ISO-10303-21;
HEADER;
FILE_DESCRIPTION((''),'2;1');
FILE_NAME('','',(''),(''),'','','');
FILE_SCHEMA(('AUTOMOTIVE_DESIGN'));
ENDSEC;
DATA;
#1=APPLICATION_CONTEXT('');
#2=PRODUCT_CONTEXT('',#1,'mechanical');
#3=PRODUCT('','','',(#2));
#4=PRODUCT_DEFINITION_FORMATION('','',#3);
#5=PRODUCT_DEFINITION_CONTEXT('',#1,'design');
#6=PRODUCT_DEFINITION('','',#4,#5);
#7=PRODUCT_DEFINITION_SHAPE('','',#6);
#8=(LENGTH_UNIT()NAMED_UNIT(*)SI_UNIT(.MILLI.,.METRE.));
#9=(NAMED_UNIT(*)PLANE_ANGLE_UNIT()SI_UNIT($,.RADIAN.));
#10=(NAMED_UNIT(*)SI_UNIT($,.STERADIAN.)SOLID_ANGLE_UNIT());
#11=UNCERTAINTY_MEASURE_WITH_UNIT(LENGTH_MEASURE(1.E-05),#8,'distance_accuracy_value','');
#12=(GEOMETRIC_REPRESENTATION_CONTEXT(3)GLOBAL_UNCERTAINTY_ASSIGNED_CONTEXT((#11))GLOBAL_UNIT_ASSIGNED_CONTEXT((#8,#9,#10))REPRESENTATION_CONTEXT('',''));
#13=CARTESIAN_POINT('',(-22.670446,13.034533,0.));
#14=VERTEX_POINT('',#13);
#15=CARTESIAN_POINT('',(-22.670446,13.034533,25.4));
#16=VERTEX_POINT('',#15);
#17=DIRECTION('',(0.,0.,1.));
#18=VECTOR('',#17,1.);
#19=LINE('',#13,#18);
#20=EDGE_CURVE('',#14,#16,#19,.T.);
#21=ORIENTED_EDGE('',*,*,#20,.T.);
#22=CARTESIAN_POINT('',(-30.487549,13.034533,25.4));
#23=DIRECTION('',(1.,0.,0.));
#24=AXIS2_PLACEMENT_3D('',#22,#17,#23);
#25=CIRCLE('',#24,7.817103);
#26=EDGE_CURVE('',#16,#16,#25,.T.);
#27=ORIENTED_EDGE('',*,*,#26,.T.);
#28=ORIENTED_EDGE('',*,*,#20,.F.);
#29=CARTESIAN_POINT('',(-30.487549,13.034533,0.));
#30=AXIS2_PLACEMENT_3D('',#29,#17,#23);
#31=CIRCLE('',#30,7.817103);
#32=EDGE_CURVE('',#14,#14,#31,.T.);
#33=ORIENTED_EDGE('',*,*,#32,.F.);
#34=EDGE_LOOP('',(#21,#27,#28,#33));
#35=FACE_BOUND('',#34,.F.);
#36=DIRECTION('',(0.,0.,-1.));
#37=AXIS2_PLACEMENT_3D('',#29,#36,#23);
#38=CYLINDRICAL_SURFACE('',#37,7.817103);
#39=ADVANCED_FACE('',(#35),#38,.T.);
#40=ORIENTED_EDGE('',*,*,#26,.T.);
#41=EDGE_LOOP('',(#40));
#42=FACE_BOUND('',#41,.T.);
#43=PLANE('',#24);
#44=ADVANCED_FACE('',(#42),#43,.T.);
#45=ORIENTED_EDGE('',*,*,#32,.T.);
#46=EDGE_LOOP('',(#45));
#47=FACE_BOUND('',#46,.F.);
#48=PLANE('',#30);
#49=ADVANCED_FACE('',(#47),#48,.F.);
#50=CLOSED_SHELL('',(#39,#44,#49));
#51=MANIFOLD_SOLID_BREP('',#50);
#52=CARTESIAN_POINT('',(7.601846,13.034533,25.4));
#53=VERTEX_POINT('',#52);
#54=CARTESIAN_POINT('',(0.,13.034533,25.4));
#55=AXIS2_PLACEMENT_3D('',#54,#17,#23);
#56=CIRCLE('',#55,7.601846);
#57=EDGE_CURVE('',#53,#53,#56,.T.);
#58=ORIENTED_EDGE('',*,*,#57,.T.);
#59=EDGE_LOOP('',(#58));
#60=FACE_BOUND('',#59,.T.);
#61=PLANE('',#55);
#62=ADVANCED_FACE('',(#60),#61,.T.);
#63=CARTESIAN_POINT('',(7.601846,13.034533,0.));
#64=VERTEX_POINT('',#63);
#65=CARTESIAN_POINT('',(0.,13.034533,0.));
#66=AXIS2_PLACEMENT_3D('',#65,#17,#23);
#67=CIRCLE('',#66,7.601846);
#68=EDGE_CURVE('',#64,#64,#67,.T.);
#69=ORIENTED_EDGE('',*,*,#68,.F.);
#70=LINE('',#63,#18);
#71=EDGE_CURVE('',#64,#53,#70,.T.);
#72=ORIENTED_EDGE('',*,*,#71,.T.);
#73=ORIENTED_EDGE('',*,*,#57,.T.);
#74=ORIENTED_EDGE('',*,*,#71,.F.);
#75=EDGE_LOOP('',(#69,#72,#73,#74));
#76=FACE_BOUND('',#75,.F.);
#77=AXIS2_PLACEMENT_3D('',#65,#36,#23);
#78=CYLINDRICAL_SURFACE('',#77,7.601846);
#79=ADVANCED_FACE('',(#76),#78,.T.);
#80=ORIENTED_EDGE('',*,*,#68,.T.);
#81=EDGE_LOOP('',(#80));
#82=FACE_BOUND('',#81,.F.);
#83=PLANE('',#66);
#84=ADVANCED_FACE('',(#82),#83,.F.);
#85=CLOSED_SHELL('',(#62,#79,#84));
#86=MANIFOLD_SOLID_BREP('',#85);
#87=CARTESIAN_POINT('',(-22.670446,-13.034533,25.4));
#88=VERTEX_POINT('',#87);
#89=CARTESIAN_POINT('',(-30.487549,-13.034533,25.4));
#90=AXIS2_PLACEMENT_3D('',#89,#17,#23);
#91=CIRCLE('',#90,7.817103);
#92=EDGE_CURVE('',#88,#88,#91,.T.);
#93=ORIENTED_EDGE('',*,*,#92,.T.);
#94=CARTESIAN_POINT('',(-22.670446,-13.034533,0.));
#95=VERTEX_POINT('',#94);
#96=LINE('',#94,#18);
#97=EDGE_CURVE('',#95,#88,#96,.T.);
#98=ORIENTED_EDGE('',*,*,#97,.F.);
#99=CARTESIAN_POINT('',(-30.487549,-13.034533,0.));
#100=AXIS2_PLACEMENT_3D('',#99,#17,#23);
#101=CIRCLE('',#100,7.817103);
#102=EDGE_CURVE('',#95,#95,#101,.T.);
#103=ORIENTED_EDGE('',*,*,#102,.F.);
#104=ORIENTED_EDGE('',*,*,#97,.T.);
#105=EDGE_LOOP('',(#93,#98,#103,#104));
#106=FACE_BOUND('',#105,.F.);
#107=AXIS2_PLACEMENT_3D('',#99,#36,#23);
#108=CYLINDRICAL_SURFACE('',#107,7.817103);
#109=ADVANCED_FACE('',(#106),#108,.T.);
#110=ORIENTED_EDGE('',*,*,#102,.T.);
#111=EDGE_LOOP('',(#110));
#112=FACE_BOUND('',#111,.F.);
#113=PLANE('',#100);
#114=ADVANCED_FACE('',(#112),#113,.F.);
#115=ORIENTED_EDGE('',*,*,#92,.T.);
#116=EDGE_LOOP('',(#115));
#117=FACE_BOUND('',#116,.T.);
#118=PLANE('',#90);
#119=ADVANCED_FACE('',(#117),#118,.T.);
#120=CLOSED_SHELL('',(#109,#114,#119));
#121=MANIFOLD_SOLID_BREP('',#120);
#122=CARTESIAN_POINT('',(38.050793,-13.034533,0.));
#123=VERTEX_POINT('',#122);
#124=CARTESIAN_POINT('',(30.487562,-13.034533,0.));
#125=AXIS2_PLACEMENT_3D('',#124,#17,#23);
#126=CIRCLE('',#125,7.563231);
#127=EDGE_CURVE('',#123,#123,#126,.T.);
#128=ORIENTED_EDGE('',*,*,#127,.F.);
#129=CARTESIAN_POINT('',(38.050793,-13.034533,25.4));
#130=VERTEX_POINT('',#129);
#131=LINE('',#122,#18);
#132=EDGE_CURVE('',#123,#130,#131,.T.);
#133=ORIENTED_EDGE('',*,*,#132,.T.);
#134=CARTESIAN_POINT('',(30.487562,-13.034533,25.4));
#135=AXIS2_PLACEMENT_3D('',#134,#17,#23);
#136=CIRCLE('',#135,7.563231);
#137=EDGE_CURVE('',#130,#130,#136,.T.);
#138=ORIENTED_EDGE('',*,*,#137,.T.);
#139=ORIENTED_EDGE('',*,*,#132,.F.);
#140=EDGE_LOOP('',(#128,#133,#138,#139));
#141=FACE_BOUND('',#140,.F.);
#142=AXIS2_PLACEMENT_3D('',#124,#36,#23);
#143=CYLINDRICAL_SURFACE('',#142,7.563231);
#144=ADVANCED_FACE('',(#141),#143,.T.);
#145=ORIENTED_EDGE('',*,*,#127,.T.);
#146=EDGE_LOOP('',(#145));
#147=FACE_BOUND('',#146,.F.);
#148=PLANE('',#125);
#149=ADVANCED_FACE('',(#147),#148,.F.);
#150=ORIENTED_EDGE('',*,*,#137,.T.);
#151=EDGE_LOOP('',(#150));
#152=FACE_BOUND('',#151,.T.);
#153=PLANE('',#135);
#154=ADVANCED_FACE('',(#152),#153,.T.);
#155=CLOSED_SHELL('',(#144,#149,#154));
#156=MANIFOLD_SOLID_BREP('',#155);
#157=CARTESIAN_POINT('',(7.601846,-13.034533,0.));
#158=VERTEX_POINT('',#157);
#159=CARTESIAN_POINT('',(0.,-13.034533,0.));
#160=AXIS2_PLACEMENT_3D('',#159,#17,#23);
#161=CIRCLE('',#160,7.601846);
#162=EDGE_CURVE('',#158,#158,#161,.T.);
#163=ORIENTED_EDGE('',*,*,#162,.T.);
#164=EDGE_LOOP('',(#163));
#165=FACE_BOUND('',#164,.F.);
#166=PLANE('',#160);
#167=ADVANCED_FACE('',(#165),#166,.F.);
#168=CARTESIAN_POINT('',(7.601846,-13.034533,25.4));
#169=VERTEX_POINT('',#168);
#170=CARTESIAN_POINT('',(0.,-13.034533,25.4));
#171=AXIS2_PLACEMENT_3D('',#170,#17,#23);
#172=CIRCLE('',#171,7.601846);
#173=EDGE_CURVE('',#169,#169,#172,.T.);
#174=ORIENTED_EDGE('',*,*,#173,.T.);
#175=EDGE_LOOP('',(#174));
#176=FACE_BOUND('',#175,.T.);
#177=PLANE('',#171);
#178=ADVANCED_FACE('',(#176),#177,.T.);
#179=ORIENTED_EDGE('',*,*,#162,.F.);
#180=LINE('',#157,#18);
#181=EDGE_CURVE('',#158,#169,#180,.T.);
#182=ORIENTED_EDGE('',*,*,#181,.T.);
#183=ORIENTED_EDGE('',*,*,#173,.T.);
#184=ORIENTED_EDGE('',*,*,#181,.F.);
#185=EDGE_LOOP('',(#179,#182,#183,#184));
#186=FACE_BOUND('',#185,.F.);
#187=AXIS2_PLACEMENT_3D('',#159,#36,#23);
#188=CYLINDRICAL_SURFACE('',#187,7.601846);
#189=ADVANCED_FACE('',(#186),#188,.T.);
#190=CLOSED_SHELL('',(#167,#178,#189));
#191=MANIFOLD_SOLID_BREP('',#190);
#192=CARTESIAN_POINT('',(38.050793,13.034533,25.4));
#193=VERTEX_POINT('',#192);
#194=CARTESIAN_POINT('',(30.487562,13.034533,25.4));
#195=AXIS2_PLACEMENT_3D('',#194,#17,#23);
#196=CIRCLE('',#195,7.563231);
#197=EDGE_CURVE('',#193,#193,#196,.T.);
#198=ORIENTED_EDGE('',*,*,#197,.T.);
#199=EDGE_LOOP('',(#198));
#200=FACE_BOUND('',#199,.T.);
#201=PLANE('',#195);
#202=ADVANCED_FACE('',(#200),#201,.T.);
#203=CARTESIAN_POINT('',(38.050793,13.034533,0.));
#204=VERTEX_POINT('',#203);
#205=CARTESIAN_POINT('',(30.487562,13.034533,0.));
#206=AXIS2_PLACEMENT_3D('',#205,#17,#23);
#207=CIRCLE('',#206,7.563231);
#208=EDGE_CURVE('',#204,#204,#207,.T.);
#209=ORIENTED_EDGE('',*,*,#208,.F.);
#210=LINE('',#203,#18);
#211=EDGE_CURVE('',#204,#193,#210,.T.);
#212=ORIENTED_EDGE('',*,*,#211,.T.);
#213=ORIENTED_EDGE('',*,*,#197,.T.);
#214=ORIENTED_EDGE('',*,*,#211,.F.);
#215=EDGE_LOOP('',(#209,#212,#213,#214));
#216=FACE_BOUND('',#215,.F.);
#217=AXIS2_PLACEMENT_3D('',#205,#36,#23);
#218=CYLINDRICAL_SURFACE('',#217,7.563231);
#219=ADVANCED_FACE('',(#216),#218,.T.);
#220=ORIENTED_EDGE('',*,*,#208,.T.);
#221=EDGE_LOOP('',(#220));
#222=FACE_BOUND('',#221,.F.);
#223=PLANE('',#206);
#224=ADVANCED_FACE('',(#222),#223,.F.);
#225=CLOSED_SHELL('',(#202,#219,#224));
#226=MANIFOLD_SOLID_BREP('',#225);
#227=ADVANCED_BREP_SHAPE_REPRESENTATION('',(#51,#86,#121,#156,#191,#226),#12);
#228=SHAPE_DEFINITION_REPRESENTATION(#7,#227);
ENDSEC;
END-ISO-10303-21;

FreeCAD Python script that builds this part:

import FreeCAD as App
import Part
import Sketcher

V = App.Vector
Q = App.Units.Quantity

doc = App.newDocument("Part")
body = doc.addObject("PartDesign::Body", "Body")
body.AllowCompound = True

sketch1 = body.newObject("Sketcher::SketchObject", "Sketch")
sketch1.AttachmentSupport = (doc.getObject("XY_Plane"), [""])
sketch1.MapMode = "FlatFace"
sketch1.addGeometry([
    Part.Circle(V(30, -13, 0), V(0, 0, 1), 8),
    Part.Circle(V(0, -13, 0), V(0, 0, 1), 8),
    Part.Circle(V(-30, -13, 0), V(0, 0, 1), 8),
    Part.Circle(V(-30, 13, 0), V(0, 0, 1), 8),
    Part.Circle(V(0, 13, 0), V(0, 0, 1), 8),
    Part.Circle(V(30, 13, 0), V(0, 0, 1), 8),
], False)
sketch1.addConstraint([
    Sketcher.Constraint("Equal", 2, 3),
    Sketcher.Constraint("Equal", 1, 4),
    Sketcher.Constraint("Equal", 0, 5),
    Sketcher.Constraint("Symmetric", 1, 3, 4, 3, -1, 1),
    Sketcher.Constraint("Symmetric", 2, 3, 3, 3, -1),
    Sketcher.Constraint("Symmetric", 0, 3, 5, 3, -1),
    Sketcher.Constraint("PointOnObject", 1, 3, -2),
    Sketcher.Constraint("Horizontal", 0, 3, 1, 3),
    Sketcher.Constraint("Horizontal", 1, 3, 2, 3),
    Sketcher.Constraint("Diameter", 0, 15.126462),
    Sketcher.Constraint("Diameter", 1, 15.203692),
    Sketcher.Constraint("Diameter", 2, 15.634206),
    Sketcher.Constraint("DistanceX", 2, 3, -1, 1, 30.487549),
    Sketcher.Constraint("DistanceX", 2, 3, 0, 3, 60.975111),
    Sketcher.Constraint("DistanceY", 0, 3, -1, 1, 13.034533),
])
pad1 = body.newObject("PartDesign::Pad", "Pad")
pad1.Profile = sketch1
pad1.Length = Q("1 in")

doc.recompute()
